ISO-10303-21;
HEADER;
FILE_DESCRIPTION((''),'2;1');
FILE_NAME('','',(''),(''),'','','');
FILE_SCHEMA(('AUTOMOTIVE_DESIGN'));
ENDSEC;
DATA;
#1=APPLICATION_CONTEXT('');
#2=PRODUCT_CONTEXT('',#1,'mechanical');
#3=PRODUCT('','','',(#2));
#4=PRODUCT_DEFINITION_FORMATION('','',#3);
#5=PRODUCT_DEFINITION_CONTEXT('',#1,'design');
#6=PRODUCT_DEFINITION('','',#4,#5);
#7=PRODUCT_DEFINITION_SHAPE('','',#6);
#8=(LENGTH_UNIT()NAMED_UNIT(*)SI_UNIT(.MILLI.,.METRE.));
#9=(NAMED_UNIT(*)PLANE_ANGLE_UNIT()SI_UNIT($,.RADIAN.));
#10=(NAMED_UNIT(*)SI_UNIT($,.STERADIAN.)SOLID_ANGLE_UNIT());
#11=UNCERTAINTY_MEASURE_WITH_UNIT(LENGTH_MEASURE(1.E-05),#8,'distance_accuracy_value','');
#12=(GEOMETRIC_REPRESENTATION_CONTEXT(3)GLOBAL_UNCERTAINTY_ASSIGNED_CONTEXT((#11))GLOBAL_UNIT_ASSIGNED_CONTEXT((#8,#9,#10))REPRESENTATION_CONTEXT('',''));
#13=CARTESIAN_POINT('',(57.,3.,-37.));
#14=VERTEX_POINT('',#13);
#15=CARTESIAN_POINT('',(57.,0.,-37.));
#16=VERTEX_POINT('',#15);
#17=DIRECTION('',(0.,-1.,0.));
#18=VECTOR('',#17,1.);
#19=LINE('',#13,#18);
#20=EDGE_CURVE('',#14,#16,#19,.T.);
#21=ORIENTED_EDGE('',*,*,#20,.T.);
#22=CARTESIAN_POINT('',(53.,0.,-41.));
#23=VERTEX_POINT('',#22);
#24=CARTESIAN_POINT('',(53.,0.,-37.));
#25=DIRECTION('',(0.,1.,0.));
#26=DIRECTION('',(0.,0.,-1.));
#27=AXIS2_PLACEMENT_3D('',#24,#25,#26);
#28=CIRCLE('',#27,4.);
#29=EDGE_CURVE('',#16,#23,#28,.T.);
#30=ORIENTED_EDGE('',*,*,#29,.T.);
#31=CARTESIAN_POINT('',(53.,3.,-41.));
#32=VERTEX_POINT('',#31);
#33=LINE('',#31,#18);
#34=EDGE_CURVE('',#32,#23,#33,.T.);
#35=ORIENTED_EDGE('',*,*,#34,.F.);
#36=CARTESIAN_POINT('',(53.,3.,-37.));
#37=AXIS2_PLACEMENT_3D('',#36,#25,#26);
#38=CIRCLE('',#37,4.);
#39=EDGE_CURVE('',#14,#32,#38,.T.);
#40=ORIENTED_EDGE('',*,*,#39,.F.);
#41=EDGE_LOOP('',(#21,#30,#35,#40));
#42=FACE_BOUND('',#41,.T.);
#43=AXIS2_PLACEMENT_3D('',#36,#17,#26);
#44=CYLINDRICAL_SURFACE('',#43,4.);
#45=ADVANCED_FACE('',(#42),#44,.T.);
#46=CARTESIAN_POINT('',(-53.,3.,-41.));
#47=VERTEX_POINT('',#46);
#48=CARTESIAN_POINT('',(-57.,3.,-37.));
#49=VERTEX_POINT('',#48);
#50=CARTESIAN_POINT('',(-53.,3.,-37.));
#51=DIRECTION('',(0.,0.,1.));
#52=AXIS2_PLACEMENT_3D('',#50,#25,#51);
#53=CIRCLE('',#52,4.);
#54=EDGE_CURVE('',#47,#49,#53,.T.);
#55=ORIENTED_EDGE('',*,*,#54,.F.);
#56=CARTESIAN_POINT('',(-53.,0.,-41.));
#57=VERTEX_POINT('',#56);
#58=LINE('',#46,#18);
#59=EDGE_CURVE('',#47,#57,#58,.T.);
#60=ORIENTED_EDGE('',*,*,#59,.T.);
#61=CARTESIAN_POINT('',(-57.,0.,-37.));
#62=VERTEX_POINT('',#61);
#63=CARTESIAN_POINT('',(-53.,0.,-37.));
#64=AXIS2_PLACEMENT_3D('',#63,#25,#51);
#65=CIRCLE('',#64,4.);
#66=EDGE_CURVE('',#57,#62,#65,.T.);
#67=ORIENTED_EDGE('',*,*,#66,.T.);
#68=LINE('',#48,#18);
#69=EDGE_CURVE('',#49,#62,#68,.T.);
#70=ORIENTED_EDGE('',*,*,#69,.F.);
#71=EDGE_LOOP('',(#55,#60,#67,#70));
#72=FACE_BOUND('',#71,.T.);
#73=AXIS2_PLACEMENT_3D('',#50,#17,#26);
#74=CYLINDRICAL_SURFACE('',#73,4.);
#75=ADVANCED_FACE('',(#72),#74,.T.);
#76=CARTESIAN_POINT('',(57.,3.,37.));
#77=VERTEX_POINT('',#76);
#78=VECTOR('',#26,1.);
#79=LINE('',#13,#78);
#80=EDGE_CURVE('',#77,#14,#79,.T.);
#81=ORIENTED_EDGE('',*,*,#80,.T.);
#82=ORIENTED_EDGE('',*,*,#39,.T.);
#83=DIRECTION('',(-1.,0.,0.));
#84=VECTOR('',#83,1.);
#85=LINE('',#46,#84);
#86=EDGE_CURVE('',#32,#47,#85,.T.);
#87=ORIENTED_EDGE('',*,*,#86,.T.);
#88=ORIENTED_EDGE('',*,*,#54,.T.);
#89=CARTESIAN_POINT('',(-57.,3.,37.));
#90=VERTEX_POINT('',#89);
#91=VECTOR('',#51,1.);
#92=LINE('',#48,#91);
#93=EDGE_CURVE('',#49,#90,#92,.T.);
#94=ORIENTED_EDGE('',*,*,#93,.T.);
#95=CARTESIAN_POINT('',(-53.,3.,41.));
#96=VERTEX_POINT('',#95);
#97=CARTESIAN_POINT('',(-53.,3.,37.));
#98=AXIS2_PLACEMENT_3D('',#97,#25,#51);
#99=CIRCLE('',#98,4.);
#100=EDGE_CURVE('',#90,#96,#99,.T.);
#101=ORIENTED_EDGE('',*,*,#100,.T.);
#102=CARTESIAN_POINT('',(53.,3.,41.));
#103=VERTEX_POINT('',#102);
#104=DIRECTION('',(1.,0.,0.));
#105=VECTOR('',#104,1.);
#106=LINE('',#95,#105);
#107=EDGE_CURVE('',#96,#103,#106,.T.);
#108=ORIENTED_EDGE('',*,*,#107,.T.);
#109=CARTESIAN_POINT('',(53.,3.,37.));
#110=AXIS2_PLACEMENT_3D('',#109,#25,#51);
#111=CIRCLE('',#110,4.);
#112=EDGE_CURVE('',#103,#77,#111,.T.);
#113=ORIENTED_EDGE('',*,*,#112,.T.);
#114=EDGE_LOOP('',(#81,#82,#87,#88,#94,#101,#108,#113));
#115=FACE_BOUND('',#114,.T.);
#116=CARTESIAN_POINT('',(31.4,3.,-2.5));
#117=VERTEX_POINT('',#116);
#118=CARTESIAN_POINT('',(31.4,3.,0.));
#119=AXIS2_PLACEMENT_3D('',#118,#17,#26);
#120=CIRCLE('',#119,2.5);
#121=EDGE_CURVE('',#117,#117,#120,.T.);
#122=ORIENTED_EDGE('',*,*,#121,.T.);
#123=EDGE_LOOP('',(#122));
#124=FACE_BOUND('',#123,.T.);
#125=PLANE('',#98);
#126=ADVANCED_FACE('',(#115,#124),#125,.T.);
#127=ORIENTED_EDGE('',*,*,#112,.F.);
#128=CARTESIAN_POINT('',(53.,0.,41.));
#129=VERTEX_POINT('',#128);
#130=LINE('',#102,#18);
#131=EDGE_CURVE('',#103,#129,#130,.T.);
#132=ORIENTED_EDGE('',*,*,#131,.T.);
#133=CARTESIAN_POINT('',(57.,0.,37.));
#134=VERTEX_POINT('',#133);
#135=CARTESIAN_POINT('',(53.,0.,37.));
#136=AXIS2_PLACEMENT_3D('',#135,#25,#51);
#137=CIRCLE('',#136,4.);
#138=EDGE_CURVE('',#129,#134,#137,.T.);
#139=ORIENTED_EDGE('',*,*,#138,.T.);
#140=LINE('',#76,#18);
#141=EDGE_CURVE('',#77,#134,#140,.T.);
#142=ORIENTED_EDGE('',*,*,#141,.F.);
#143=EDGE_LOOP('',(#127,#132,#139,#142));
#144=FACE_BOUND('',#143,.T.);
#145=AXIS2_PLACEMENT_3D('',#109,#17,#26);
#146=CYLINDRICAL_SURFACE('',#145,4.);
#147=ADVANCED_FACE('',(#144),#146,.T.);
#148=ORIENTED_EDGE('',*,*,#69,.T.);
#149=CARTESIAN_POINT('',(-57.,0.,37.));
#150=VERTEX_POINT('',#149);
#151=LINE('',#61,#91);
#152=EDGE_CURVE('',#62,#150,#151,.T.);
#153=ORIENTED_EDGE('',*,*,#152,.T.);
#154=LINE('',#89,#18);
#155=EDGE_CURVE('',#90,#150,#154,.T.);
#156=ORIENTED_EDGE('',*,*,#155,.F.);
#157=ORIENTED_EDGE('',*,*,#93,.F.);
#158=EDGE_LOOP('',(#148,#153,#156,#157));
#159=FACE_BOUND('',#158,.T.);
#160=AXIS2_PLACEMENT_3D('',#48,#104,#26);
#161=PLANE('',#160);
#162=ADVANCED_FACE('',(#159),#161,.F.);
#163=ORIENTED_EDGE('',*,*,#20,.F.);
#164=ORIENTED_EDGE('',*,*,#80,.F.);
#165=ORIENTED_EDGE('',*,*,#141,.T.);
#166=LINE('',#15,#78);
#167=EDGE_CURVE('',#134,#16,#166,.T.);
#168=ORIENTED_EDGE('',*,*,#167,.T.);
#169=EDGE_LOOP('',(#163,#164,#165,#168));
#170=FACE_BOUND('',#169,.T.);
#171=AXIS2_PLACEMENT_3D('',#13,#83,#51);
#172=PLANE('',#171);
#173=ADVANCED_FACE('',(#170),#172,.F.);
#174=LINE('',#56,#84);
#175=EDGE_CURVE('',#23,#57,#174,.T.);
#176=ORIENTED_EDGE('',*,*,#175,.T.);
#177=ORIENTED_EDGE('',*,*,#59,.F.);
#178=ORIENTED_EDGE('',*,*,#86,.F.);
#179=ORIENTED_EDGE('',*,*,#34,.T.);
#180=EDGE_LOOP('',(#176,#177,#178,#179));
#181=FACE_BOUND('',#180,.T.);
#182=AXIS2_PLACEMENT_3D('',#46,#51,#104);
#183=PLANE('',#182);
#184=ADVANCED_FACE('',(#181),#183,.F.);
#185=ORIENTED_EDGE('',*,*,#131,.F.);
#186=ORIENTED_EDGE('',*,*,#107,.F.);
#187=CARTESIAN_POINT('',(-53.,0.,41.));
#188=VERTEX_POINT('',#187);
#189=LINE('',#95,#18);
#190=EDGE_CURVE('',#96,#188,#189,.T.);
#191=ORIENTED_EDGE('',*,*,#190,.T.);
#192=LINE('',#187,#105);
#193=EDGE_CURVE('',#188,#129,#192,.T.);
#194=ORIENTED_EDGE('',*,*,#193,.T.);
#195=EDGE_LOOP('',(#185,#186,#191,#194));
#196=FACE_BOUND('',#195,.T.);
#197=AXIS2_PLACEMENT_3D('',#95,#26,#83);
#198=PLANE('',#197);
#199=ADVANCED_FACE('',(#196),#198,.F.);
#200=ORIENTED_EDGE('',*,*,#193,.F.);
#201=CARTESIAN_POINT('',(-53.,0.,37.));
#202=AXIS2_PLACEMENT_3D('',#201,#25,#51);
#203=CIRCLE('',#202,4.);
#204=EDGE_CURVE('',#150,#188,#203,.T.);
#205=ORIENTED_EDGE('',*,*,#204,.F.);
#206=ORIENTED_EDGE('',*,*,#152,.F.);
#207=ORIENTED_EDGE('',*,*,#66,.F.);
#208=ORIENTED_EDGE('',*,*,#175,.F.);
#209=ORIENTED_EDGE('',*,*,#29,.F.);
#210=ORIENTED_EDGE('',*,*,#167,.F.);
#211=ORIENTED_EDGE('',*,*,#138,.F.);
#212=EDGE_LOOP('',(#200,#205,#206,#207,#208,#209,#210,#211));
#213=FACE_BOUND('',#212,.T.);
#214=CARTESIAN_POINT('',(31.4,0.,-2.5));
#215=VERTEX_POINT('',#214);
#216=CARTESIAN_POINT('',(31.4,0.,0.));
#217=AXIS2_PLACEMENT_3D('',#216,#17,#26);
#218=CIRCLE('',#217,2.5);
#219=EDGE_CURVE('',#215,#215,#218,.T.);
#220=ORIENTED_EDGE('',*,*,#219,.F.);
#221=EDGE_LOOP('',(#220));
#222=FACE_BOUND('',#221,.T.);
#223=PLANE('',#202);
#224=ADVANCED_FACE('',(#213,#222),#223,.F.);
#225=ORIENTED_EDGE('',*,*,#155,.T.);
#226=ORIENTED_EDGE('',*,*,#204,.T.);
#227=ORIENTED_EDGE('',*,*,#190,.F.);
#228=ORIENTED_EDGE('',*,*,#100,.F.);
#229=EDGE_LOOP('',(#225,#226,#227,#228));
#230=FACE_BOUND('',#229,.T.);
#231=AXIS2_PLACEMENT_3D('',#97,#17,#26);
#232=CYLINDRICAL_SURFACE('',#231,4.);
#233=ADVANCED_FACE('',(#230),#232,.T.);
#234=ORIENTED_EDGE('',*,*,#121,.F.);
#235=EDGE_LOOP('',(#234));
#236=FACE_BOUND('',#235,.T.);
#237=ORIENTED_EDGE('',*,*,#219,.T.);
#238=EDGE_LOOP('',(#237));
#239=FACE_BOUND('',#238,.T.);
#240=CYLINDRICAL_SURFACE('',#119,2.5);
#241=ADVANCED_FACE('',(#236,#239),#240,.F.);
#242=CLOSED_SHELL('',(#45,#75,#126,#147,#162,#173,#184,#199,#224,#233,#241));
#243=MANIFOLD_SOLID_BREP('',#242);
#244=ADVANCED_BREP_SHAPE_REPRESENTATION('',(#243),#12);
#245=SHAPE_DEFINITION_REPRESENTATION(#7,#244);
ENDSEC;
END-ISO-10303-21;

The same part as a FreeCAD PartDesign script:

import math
import FreeCAD as App
import Part
import Sketcher
Q = App.Units.Quantity

doc = App.newDocument("Part")
body = doc.addObject("PartDesign::Body", "Body")

sketch1 = doc.addObject("Sketcher::SketchObject", "Sketch")
body.addObject(sketch1)
sketch1.AttachmentSupport = (doc.XZ_Plane, [""])
sketch1.MapMode = "FlatFace"
sketch1.addGeometry(Part.LineSegment(App.Vector(53, -41, 0), App.Vector(-53, -41, 0)), False)
sketch1.addGeometry(Part.ArcOfCircle(Part.Circle(App.Vector(-53, -37, 0), App.Vector(0, 0, 1), 4), math.radians(180), math.radians(270)), False)
sketch1.addGeometry(Part.LineSegment(App.Vector(-57, -37, 0), App.Vector(-57, 37, 0)), False)
sketch1.addGeometry(Part.ArcOfCircle(Part.Circle(App.Vector(-53, 37, 0), App.Vector(0, 0, 1), 4), math.radians(90), math.radians(180)), False)
sketch1.addGeometry(Part.LineSegment(App.Vector(-53, 41, 0), App.Vector(53, 41, 0)), False)
sketch1.addGeometry(Part.ArcOfCircle(Part.Circle(App.Vector(53, 37, 0), App.Vector(0, 0, 1), 4), math.radians(0), math.radians(90)), False)
sketch1.addGeometry(Part.LineSegment(App.Vector(57, 37, 0), App.Vector(57, -37, 0)), False)
sketch1.addGeometry(Part.ArcOfCircle(Part.Circle(App.Vector(53, -37, 0), App.Vector(0, 0, 1), 4), math.radians(-90), math.radians(0)), False)
sketch1.addConstraint(Sketcher.Constraint("Tangent", 0, 2, 1, 2))
sketch1.addConstraint(Sketcher.Constraint("Tangent", 1, 1, 2, 1))
sketch1.addConstraint(Sketcher.Constraint("Tangent", 2, 2, 3, 2))
sketch1.addConstraint(Sketcher.Constraint("Tangent", 3, 1, 4, 1))
sketch1.addConstraint(Sketcher.Constraint("Tangent", 4, 2, 5, 2))
sketch1.addConstraint(Sketcher.Constraint("Tangent", 5, 1, 6, 1))
sketch1.addConstraint(Sketcher.Constraint("Tangent", 6, 2, 7, 2))
sketch1.addConstraint(Sketcher.Constraint("Tangent", 7, 1, 0, 1))
sketch1.addConstraint(Sketcher.Constraint("Horizontal", 0))
sketch1.addConstraint(Sketcher.Constraint("Vertical", 2))
sketch1.addConstraint(Sketcher.Constraint("Horizontal", 4))
sketch1.addConstraint(Sketcher.Constraint("Vertical", 6))
sketch1.addConstraint(Sketcher.Constraint("Equal", 1, 3))
sketch1.addConstraint(Sketcher.Constraint("Equal", 3, 5))
sketch1.addConstraint(Sketcher.Constraint("Equal", 5, 7))
sketch1.addConstraint(Sketcher.Constraint("Symmetric", 1, 3, 5, 3, -1, 1))
sketch1.addConstraint(Sketcher.Constraint("Radius", 1, Q("4 mm")))
sketch1.addConstraint(Sketcher.Constraint("DistanceX", 0, 2, 0, 1, Q("106 mm")))
sketch1.addConstraint(Sketcher.Constraint("DistanceY", 2, 1, 2, 2, Q("74 mm")))
pad1 = doc.addObject("PartDesign::Pad", "Pad")
body.addObject(pad1)
pad1.Profile = sketch1
pad1.Length = 3
pad1.Reversed = True

sketch2 = doc.addObject("Sketcher::SketchObject", "Sketch001")
body.addObject(sketch2)
sketch2.AttachmentSupport = (doc.XZ_Plane, [""])
sketch2.MapMode = "FlatFace"
sketch2.addGeometry(Part.Circle(App.Vector(31.4, 0, 0), App.Vector(0, 0, 1), 2.5), False)
sketch2.addConstraint(Sketcher.Constraint("PointOnObject", 0, 3, -1))
sketch2.addConstraint(Sketcher.Constraint("Diameter", 0, Q("5 mm")))
sketch2.addConstraint(Sketcher.Constraint("DistanceX", -1, 1, 0, 3, Q("31.4 mm")))
pocket1 = doc.addObject("PartDesign::Pocket", "Pocket")
body.addObject(pocket1)
pocket1.Profile = sketch2
pocket1.Length = 3

doc.recompute()
